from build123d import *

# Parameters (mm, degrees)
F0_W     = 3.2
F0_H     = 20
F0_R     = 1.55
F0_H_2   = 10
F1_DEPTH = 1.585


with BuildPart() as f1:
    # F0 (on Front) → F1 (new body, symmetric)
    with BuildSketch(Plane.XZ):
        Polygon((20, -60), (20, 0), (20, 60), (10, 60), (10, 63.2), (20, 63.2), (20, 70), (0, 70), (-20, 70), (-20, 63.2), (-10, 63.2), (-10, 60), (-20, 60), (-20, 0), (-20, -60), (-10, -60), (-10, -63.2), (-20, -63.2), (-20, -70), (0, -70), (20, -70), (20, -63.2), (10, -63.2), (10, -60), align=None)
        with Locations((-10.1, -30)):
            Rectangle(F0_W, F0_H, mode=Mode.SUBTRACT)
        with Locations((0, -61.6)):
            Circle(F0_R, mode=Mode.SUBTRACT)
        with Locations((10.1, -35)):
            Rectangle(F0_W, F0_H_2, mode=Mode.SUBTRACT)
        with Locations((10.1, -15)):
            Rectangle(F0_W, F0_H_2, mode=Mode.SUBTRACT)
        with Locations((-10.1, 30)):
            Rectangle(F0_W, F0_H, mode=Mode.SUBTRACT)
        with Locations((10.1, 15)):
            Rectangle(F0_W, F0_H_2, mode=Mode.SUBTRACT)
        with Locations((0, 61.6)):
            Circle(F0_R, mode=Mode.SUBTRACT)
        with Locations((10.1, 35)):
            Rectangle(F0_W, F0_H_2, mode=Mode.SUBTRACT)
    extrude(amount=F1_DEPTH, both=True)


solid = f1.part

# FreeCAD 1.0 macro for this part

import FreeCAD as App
import Part
import Sketcher

V = App.Vector
Q = App.Units.Quantity

doc = App.newDocument("Part")
params = doc.addObject("Spreadsheet::Sheet", "Params")
for row, (alias, value) in enumerate([
    ("sketch1_diameter", "3.1 mm"),
    ("sketch1_width", "10 mm"),
    ("sketch1_width2", "40 mm"),
    ("sketch1_height", "120 mm"),
    ("sketch1_height2", "20 mm"),
    ("pad1_length", "3.17 mm"),
], start=1):
    params.set(f"A{row}", alias)
    params.set(f"B{row}", "=" + value)
    params.setAlias(f"B{row}", alias)

body = doc.addObject("PartDesign::Body", "Body")

# Sketch on XZ plane
sketch1 = body.newObject("Sketcher::SketchObject", "Sketch")
sketch1.AttachmentSupport = (doc.getObject("XZ_Plane"), [""])
sketch1.MapMode = "FlatFace"
sketch1.addGeometry([
    Part.LineSegment(V(20, -60, 0), V(20, 60, 0)),  # 0
    Part.LineSegment(V(20, 60, 0), V(10, 60, 0)),  # 1
    Part.LineSegment(V(10, 60, 0), V(10, 63.2, 0)),  # 2
    Part.LineSegment(V(10, 63.2, 0), V(20, 63.2, 0)),  # 3
    Part.LineSegment(V(20, 63.2, 0), V(20, 70, 0)),  # 4
    Part.LineSegment(V(20, 70, 0), V(-20, 70, 0)),  # 5
    Part.LineSegment(V(-20, 70, 0), V(-20, 63.2, 0)),  # 6
    Part.LineSegment(V(-20, 63.2, 0), V(-10, 63.2, 0)),  # 7
    Part.LineSegment(V(-10, 63.2, 0), V(-10, 60, 0)),  # 8
    Part.LineSegment(V(-10, 60, 0), V(-20, 60, 0)),  # 9
    Part.LineSegment(V(-20, 60, 0), V(-20, -60, 0)),  # 10
    Part.LineSegment(V(-20, -60, 0), V(-10, -60, 0)),  # 11
    Part.LineSegment(V(-10, -60, 0), V(-10, -63.2, 0)),  # 12
    Part.LineSegment(V(-10, -63.2, 0), V(-20, -63.2, 0)),  # 13
    Part.LineSegment(V(-20, -63.2, 0), V(-20, -70, 0)),  # 14
    Part.LineSegment(V(-20, -70, 0), V(20, -70, 0)),  # 15
    Part.LineSegment(V(20, -70, 0), V(20, -63.2, 0)),  # 16
    Part.LineSegment(V(20, -63.2, 0), V(10, -63.2, 0)),  # 17
    Part.LineSegment(V(10, -63.2, 0), V(10, -60, 0)),  # 18
    Part.LineSegment(V(10, -60, 0), V(20, -60, 0)),  # 19
    Part.LineSegment(V(-8.5, -40, 0), V(-11.7, -40, 0)),  # 20
    Part.LineSegment(V(-11.7, -40, 0), V(-11.7, -20, 0)),  # 21
    Part.LineSegment(V(-11.7, -20, 0), V(-8.5, -20, 0)),  # 22
    Part.LineSegment(V(-8.5, -20, 0), V(-8.5, -40, 0)),  # 23
    Part.Circle(V(0, -61.6, 0), V(0, 0, 1), 1.6),  # 24
    Part.LineSegment(V(11.7, -40, 0), V(8.5, -40, 0)),  # 25
    Part.LineSegment(V(8.5, -40, 0), V(8.5, -30, 0)),  # 26
    Part.LineSegment(V(8.5, -30, 0), V(11.7, -30, 0)),  # 27
    Part.LineSegment(V(11.7, -30, 0), V(11.7, -40, 0)),  # 28
    Part.LineSegment(V(11.7, -20, 0), V(8.5, -20, 0)),  # 29
    Part.LineSegment(V(8.5, -20, 0), V(8.5, -10, 0)),  # 30
    Part.LineSegment(V(8.5, -10, 0), V(11.7, -10, 0)),  # 31
    Part.LineSegment(V(11.7, -10, 0), V(11.7, -20, 0)),  # 32
    Part.LineSegment(V(-8.5, 20, 0), V(-11.7, 20, 0)),  # 33
    Part.LineSegment(V(-11.7, 20, 0), V(-11.7, 40, 0)),  # 34
    Part.LineSegment(V(-11.7, 40, 0), V(-8.5, 40, 0)),  # 35
    Part.LineSegment(V(-8.5, 40, 0), V(-8.5, 20, 0)),  # 36
    Part.LineSegment(V(11.7, 10, 0), V(8.5, 10, 0)),  # 37
    Part.LineSegment(V(8.5, 10, 0), V(8.5, 20, 0)),  # 38
    Part.LineSegment(V(8.5, 20, 0), V(11.7, 20, 0)),  # 39
    Part.LineSegment(V(11.7, 20, 0), V(11.7, 10, 0)),  # 40
    Part.Circle(V(0, 61.6, 0), V(0, 0, 1), 1.6),  # 41
    Part.LineSegment(V(11.7, 30, 0), V(8.5, 30, 0)),  # 42
    Part.LineSegment(V(8.5, 30, 0), V(8.5, 40, 0)),  # 43
    Part.LineSegment(V(8.5, 40, 0), V(11.7, 40, 0)),  # 44
    Part.LineSegment(V(11.7, 40, 0), V(11.7, 30, 0)),  # 45
], False)
sketch1.addConstraint([
    Sketcher.Constraint("Coincident", 0, 2, 1, 1),
    Sketcher.Constraint("Coincident", 1, 2, 2, 1),
    Sketcher.Constraint("Coincident", 2, 2, 3, 1),
    Sketcher.Constraint("Coincident", 3, 2, 4, 1),
    Sketcher.Constraint("Coincident", 4, 2, 5, 1),
    Sketcher.Constraint("Coincident", 5, 2, 6, 1),
    Sketcher.Constraint("Coincident", 6, 2, 7, 1),
    Sketcher.Constraint("Coincident", 7, 2, 8, 1),
    Sketcher.Constraint("Coincident", 8, 2, 9, 1),
    Sketcher.Constraint("Coincident", 9, 2, 10, 1),
    Sketcher.Constraint("Coincident", 10, 2, 11, 1),
    Sketcher.Constraint("Coincident", 11, 2, 12, 1),
    Sketcher.Constraint("Coincident", 12, 2, 13, 1),
    Sketcher.Constraint("Coincident", 13, 2, 14, 1),
    Sketcher.Constraint("Coincident", 14, 2, 15, 1),
    Sketcher.Constraint("Coincident", 15, 2, 16, 1),
    Sketcher.Constraint("Coincident", 16, 2, 17, 1),
    Sketcher.Constraint("Coincident", 17, 2, 18, 1),
    Sketcher.Constraint("Coincident", 18, 2, 19, 1),
    Sketcher.Constraint("Coincident", 19, 2, 0, 1),
    Sketcher.Constraint("Coincident", 20, 2, 21, 1),
    Sketcher.Constraint("Coincident", 21, 2, 22, 1),
    Sketcher.Constraint("Coincident", 22, 2, 23, 1),
    Sketcher.Constraint("Coincident", 23, 2, 20, 1),
    Sketcher.Constraint("Coincident", 25, 2, 26, 1),
    Sketcher.Constraint("Coincident", 26, 2, 27, 1),
    Sketcher.Constraint("Coincident", 27, 2, 28, 1),
    Sketcher.Constraint("Coincident", 28, 2, 25, 1),
    Sketcher.Constraint("Coincident", 29, 2, 30, 1),
    Sketcher.Constraint("Coincident", 30, 2, 31, 1),
    Sketcher.Constraint("Coincident", 31, 2, 32, 1),
    Sketcher.Constraint("Coincident", 32, 2, 29, 1),
    Sketcher.Constraint("Coincident", 33, 2, 34, 1),
    Sketcher.Constraint("Coincident", 34, 2, 35, 1),
    Sketcher.Constraint("Coincident", 35, 2, 36, 1),
    Sketcher.Constraint("Coincident", 36, 2, 33, 1),
    Sketcher.Constraint("Coincident", 37, 2, 38, 1),
    Sketcher.Constraint("Coincident", 38, 2, 39, 1),
    Sketcher.Constraint("Coincident", 39, 2, 40, 1),
    Sketcher.Constraint("Coincident", 40, 2, 37, 1),
    Sketcher.Constraint("Coincident", 42, 2, 43, 1),
    Sketcher.Constraint("Coincident", 43, 2, 44, 1),
    Sketcher.Constraint("Coincident", 44, 2, 45, 1),
    Sketcher.Constraint("Coincident", 45, 2, 42, 1),
    Sketcher.Constraint("Vertical", 0),
    Sketcher.Constraint("Horizontal", 1),
    Sketcher.Constraint("Vertical", 2),
    Sketcher.Constraint("Horizontal", 3),
    Sketcher.Constraint("Vertical", 4),
    Sketcher.Constraint("Horizontal", 5),
    Sketcher.Constraint("Vertical", 6),
    Sketcher.Constraint("Horizontal", 7),
    Sketcher.Constraint("Vertical", 8),
    Sketcher.Constraint("Horizontal", 9),
    Sketcher.Constraint("Vertical", 10),
    Sketcher.Constraint("Horizontal", 11),
    Sketcher.Constraint("Vertical", 12),
    Sketcher.Constraint("Horizontal", 13),
    Sketcher.Constraint("Vertical", 14),
    Sketcher.Constraint("Horizontal", 15),
    Sketcher.Constraint("Vertical", 16),
    Sketcher.Constraint("Horizontal", 17),
    Sketcher.Constraint("Vertical", 18),
    Sketcher.Constraint("Horizontal", 19),
    Sketcher.Constraint("Horizontal", 20),
    Sketcher.Constraint("Vertical", 21),
    Sketcher.Constraint("Horizontal", 22),
    Sketcher.Constraint("Vertical", 23),
    Sketcher.Constraint("Horizontal", 25),
    Sketcher.Constraint("Vertical", 26),
    Sketcher.Constraint("Horizontal", 27),
    Sketcher.Constraint("Vertical", 28),
    Sketcher.Constraint("Horizontal", 29),
    Sketcher.Constraint("Vertical", 30),
    Sketcher.Constraint("Horizontal", 31),
    Sketcher.Constraint("Vertical", 32),
    Sketcher.Constraint("Horizontal", 33),
    Sketcher.Constraint("Vertical", 34),
    Sketcher.Constraint("Horizontal", 35),
    Sketcher.Constraint("Vertical", 36),
    Sketcher.Constraint("Horizontal", 37),
    Sketcher.Constraint("Vertical", 38),
    Sketcher.Constraint("Horizontal", 39),
    Sketcher.Constraint("Vertical", 40),
    Sketcher.Constraint("Horizontal", 42),
    Sketcher.Constraint("Vertical", 43),
    Sketcher.Constraint("Horizontal", 44),
    Sketcher.Constraint("Vertical", 45),
    Sketcher.Constraint("Equal", 24, 41),
    Sketcher.Constraint("Symmetric", 24, 3, 41, 3, -1, 1),
    Sketcher.Constraint("Symmetric", 0, 2, 10, 2, -1, 1),
    Sketcher.Constraint("Symmetric", 2, 2, 12, 2, -1, 1),
    Sketcher.Constraint("Symmetric", 4, 2, 14, 2, -1, 1),
    Sketcher.Constraint("Symmetric", 6, 2, 16, 2, -1, 1),
    Sketcher.Constraint("Symmetric", 8, 2, 18, 2, -1, 1),
    Sketcher.Constraint("Symmetric", 32, 2, 33, 2, -1, 1),
    Sketcher.Constraint("Symmetric", 28, 2, 34, 2, -1, 1),
    Sketcher.Constraint("Symmetric", 22, 2, 38, 2, -1, 1),
    Sketcher.Constraint("Symmetric", 23, 2, 43, 2, -1, 1),
    Sketcher.Constraint("Symmetric", 3, 2, 6, 2, -2),
    Sketcher.Constraint("Symmetric", 1, 2, 8, 2, -2),
    Sketcher.Constraint("Symmetric", 23, 2, 25, 2, -2),
    Sketcher.Constraint("Symmetric", 22, 2, 29, 2, -2),
    Sketcher.Constraint("Symmetric", 31, 2, 40, 2, -1),
    Sketcher.Constraint("Symmetric", 27, 2, 45, 2, -1),
    Sketcher.Constraint("PointOnObject", 24, 3, -2),
    Sketcher.Constraint("Vertical", 0, 2, 3, 2),
    Sketcher.Constraint("Vertical", 21, 2, 33, 2),
    Sketcher.Constraint("Vertical", 23, 2, 35, 2),
    Sketcher.Constraint("Equal", 44, 2),
    Sketcher.Constraint("Equal", 19, 26),
    Sketcher.Constraint("Equal", 28, 30),
    Sketcher.Constraint("Diameter", 24, Q("3.1 mm")),
    Sketcher.Constraint("DistanceX", 1, 2, 1, 1, Q("10 mm")),
    Sketcher.Constraint("DistanceX", 5, 2, 5, 1, Q("40 mm")),
    Sketcher.Constraint("DistanceY", 0, 1, 0, 2, Q("120 mm")),
    Sketcher.Constraint("DistanceY", 21, 1, 21, 2, Q("20 mm")),
    Sketcher.Constraint("DistanceX", 20, 2, 20, 1, Q("3.2 mm")),
    Sketcher.Constraint("DistanceY", 4, 1, 4, 2, Q("6.8 mm")),
    Sketcher.Constraint("DistanceY", 20, 2, -1, 1, Q("40 mm")),
    Sketcher.Constraint("DistanceX", 23, 2, 25, 2, Q("17 mm")),
    Sketcher.Constraint("DistanceY", 24, 3, -1, 1, Q("61.6 mm")),
])
sketch1.setExpression("Constraints[112]", "Params.sketch1_diameter")
sketch1.setExpression("Constraints[113]", "Params.sketch1_width")
sketch1.setExpression("Constraints[114]", "Params.sketch1_width2")
sketch1.setExpression("Constraints[115]", "Params.sketch1_height")
sketch1.setExpression("Constraints[116]", "Params.sketch1_height2")
pad1 = body.newObject("PartDesign::Pad", "Pad")
pad1.Profile = sketch1
pad1.setExpression("Length", "Params.pad1_length")
pad1.Midplane = True

doc.recompute()
